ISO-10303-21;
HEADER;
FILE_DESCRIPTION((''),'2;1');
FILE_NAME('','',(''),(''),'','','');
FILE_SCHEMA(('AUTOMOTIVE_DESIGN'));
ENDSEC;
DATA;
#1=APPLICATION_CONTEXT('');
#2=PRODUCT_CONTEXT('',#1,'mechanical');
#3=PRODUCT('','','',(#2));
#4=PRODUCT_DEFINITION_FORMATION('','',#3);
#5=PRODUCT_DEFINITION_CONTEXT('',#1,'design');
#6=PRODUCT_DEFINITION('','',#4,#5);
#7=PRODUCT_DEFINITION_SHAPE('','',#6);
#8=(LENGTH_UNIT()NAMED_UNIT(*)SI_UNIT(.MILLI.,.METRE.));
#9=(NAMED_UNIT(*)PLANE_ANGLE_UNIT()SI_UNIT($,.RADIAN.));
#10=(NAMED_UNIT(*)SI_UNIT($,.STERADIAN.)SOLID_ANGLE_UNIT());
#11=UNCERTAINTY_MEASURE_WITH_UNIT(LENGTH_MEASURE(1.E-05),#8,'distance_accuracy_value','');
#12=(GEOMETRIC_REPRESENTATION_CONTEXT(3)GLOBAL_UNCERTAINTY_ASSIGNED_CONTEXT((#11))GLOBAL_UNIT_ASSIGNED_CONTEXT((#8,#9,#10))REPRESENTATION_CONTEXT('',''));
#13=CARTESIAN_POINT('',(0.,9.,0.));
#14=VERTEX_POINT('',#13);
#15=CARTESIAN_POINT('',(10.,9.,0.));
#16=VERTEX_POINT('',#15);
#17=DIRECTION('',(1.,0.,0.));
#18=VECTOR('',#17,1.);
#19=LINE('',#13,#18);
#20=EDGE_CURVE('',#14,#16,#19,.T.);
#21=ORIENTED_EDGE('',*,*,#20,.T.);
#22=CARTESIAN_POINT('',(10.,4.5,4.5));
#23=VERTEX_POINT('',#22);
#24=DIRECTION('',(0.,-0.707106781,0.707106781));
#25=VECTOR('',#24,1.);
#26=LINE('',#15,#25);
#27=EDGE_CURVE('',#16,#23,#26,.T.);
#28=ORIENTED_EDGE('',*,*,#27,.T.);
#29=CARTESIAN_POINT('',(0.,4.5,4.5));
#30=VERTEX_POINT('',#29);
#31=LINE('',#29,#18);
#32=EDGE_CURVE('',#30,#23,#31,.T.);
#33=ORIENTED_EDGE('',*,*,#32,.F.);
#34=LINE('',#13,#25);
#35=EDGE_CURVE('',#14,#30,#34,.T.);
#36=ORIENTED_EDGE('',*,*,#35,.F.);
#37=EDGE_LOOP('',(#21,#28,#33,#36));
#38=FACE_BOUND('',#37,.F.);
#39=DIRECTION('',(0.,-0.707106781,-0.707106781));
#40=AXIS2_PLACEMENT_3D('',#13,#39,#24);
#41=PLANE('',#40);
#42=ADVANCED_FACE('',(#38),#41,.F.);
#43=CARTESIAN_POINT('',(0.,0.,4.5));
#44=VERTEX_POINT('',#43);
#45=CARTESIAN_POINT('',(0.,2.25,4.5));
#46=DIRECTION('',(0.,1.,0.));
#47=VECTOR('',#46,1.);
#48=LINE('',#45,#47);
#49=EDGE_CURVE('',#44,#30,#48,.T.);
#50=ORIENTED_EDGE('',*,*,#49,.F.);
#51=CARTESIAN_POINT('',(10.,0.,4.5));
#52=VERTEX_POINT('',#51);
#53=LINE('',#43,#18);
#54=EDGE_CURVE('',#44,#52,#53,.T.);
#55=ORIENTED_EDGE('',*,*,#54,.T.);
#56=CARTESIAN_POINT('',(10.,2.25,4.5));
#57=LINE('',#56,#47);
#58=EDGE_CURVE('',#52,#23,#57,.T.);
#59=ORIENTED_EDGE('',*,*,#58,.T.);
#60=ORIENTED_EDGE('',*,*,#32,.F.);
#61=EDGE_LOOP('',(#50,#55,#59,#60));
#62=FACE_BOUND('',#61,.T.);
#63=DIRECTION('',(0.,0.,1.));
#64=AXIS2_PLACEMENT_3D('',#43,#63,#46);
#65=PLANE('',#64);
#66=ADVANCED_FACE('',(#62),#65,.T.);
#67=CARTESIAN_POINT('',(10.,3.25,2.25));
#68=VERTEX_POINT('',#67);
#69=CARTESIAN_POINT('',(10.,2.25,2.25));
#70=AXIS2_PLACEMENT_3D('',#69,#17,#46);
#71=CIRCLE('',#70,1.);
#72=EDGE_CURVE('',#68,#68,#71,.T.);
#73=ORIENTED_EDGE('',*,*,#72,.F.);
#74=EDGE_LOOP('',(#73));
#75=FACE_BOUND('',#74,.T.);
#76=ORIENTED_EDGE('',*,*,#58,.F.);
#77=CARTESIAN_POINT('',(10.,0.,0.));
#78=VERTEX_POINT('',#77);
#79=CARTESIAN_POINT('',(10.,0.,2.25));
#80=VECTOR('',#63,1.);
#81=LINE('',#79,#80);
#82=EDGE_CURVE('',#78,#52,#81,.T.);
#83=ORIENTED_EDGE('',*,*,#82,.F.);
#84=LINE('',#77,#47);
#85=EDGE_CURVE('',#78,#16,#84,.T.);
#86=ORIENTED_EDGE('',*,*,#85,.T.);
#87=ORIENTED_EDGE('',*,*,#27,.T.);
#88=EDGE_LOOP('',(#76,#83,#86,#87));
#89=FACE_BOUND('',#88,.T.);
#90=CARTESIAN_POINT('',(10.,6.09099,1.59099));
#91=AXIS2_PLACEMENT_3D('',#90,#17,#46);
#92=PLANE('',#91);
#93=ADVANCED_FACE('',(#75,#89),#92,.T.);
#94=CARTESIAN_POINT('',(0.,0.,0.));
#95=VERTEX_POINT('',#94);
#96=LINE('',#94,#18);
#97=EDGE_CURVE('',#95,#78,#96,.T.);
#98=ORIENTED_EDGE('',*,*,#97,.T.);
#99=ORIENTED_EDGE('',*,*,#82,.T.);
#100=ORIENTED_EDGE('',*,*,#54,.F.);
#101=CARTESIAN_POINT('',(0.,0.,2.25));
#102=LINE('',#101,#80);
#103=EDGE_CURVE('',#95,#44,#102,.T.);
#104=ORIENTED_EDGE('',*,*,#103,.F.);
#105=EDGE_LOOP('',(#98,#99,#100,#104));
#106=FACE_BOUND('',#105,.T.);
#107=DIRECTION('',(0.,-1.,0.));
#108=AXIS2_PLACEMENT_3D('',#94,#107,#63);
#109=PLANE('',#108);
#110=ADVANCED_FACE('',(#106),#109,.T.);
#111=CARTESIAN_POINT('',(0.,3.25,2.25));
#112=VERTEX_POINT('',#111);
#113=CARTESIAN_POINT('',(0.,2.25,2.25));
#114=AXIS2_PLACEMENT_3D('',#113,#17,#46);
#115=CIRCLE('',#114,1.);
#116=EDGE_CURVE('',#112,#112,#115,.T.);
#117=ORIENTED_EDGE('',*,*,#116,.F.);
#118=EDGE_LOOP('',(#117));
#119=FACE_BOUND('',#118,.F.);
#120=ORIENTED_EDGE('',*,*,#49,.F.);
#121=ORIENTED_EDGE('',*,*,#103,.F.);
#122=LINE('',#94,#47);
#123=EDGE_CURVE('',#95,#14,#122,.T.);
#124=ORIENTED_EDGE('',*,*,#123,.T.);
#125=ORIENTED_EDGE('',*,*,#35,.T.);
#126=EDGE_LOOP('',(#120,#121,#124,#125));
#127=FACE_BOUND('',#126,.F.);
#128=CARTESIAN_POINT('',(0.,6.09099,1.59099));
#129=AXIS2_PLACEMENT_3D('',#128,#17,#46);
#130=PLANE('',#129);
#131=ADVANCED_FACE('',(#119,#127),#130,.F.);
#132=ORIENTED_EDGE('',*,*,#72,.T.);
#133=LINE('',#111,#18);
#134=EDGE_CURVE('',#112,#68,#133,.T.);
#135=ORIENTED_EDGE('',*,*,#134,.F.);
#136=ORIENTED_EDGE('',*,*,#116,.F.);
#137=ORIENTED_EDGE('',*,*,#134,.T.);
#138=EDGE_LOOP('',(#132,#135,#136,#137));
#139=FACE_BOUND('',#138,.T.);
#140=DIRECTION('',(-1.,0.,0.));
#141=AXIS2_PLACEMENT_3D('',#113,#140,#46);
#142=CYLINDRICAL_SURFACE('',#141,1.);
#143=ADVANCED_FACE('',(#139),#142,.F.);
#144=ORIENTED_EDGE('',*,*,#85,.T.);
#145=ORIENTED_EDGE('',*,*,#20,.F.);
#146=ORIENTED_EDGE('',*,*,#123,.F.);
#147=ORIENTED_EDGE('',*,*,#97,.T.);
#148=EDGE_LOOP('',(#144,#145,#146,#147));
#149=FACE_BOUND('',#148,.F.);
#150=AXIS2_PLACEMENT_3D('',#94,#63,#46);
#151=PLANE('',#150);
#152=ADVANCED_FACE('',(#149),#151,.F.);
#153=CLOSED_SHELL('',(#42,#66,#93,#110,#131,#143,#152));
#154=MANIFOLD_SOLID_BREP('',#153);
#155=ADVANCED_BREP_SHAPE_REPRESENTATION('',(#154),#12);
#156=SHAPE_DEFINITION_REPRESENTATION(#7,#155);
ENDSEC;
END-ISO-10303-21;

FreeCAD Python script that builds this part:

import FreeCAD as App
import Part
import Sketcher
Q = App.Units.Quantity


def add_polygon(sketch, points):
    """Adds a closed chain of lines whose ends are joined by coincident constraints."""
    first, n = sketch.GeometryCount, len(points)
    for a, b in zip(points, points[1:] + points[:1]):
        sketch.addGeometry(Part.LineSegment(App.Vector(*a, 0), App.Vector(*b, 0)), False)
    for i in range(n):
        sketch.addConstraint(Sketcher.Constraint("Coincident", first + i, 2, first + (i + 1) % n, 1))

doc = App.newDocument("Part")
body = doc.addObject("PartDesign::Body", "Body")

# Sketch on YZ plane
sketch1 = body.newObject("Sketcher::SketchObject", "Sketch")
sketch1.AttachmentSupport = (doc.getObject("YZ_Plane"), [""])
sketch1.MapMode = "FlatFace"
add_polygon(sketch1, [(9, 0), (4.5, 4.5), (0, 4.5), (0, 0)])  # lines 0-3
sketch1.addGeometry(Part.Circle(App.Vector(2.2, 2.2, 0), App.Vector(0, 0, 1), 1), False)  # 4
sketch1.addConstraint([
    Sketcher.Constraint("Horizontal", 1),
    Sketcher.Constraint("Vertical", 2),
    Sketcher.Constraint("Horizontal", 3),
    Sketcher.Constraint("Coincident", 2, 2, -1, 1),
    Sketcher.Constraint("Equal", 1, 2),
    Sketcher.Constraint("Diameter", 4, Q("2 mm")),
    Sketcher.Constraint("DistanceX", 3, 1, 3, 2, Q("9 mm")),
    Sketcher.Constraint("Angle", 0, Q("135 deg")),
    Sketcher.Constraint("DistanceX", -1, 1, 4, 3, Q("2.25 mm")),
    Sketcher.Constraint("DistanceY", -1, 1, 4, 3, Q("2.25 mm")),
])
pad1 = body.newObject("PartDesign::Pad", "Pad")
pad1.Profile = sketch1
pad1.Length = 10

doc.recompute()
